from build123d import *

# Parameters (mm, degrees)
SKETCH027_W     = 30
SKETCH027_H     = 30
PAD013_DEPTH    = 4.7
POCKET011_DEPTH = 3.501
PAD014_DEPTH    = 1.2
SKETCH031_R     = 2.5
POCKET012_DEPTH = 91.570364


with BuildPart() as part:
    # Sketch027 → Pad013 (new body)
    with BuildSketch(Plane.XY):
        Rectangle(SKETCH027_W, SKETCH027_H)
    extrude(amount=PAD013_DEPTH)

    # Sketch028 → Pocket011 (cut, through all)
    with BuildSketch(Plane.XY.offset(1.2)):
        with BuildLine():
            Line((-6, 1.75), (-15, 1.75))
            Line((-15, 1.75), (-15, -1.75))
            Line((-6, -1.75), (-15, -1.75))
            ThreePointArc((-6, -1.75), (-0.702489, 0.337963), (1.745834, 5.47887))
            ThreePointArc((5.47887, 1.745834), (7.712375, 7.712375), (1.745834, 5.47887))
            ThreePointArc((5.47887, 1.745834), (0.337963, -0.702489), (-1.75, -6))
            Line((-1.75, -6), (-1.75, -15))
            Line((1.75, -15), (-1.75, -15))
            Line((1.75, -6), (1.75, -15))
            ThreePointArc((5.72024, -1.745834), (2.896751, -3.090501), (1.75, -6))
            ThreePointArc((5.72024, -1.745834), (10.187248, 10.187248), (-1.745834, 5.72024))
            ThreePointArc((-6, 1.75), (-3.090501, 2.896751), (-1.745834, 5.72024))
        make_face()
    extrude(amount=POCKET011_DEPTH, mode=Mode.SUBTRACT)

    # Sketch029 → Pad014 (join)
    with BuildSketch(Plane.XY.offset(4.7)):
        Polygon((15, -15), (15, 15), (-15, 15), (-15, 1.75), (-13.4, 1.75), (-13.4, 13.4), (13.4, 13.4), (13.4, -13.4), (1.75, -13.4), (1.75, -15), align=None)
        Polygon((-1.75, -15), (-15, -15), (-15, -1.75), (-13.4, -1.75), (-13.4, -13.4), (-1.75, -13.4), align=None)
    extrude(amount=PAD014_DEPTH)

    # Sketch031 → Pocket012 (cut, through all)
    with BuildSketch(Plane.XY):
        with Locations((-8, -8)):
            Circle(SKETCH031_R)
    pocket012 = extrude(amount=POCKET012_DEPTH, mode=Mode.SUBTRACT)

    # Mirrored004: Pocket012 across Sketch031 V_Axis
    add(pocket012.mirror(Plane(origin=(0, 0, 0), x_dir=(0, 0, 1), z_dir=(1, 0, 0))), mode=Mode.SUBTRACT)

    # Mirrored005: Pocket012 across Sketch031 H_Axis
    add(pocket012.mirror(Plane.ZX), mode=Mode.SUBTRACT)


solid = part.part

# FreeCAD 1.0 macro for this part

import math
import FreeCAD as App
import Part
import Sketcher

V = App.Vector


def add_polygon(sketch, points):
    """Adds a closed chain of lines whose ends are joined by coincident constraints."""
    first, n = sketch.GeometryCount, len(points)
    for a, b in zip(points, points[1:] + points[:1]):
        sketch.addGeometry(Part.LineSegment(App.Vector(*a, 0), App.Vector(*b, 0)), False)
    for i in range(n):
        sketch.addConstraint(Sketcher.Constraint("Coincident", first + i, 2, first + (i + 1) % n, 1))

doc = App.newDocument("Part")
body = doc.addObject("PartDesign::Body", "Body")

sketch1 = body.newObject("Sketcher::SketchObject", "Sketch")
sketch1.AttachmentSupport = (doc.getObject("XY_Plane"), [""])
sketch1.MapMode = "FlatFace"
add_polygon(sketch1, [(-15, 15), (-15, -15), (15, -15), (15, 15)])
sketch1.addConstraint([
    Sketcher.Constraint("Vertical", 0),
    Sketcher.Constraint("Horizontal", 1),
    Sketcher.Constraint("Vertical", 2),
    Sketcher.Constraint("Horizontal", 3),
    Sketcher.Constraint("Symmetric", 0, 2, 2, 2, -1, 1),
    Sketcher.Constraint("Equal", 3, 0),
    Sketcher.Constraint("DistanceX", 1, 1, 1, 2, 30.0),
])
pad1 = body.newObject("PartDesign::Pad", "Pad")
pad1.Profile = sketch1
pad1.Length = 4.7

sketch2 = body.newObject("Sketcher::SketchObject", "Sketch001")
sketch2.AttachmentSupport = (doc.getObject("XY_Plane"), [""])
sketch2.MapMode = "FlatFace"
sketch2.AttachmentOffset = App.Placement(V(0, 0, 1.2), App.Rotation())
sketch2.addGeometry([
    Part.LineSegment(V(-6, 1.8, 0), V(-15, 1.8, 0)),
    Part.LineSegment(V(-15, 1.8, 0), V(-15, -1.8, 0)),
    Part.LineSegment(V(-15, -1.8, 0), V(-6, -1.8, 0)),
    Part.ArcOfCircle(Part.Circle(V(-6, 6, 0), V(0, 0, 1), 7.8), math.radians(-90), math.radians(-4)),
    Part.ArcOfCircle(Part.Circle(V(5.2, 5.2, 0), V(0, 0, 1), 3.5), math.radians(-86), math.radians(176)),
    Part.ArcOfCircle(Part.Circle(V(6, -6, 0), V(0, 0, 1), 7.8), math.radians(94), math.radians(180)),
    Part.LineSegment(V(-1.8, -6, 0), V(-1.8, -15, 0)),
    Part.LineSegment(V(-1.8, -15, 0), V(1.8, -15, 0)),
    Part.LineSegment(V(1.8, -15, 0), V(1.8, -6, 0)),
    Part.ArcOfCircle(Part.Circle(V(6, -6, 0), V(0, 0, 1), 4.3), math.radians(94), math.radians(180)),
    Part.ArcOfCircle(Part.Circle(V(5.2, 5.2, 0), V(0, 0, 1), 7), math.radians(-86), math.radians(176)),
    Part.ArcOfCircle(Part.Circle(V(-6, 6, 0), V(0, 0, 1), 4.3), math.radians(-90), math.radians(-4)),
], False)
sketch2.addConstraint([
    Sketcher.Constraint("Coincident", 0, 2, 1, 1),
    Sketcher.Constraint("Coincident", 1, 2, 2, 1),
    Sketcher.Constraint("Tangent", 2, 2, 3, 1),
    Sketcher.Constraint("Tangent", 3, 2, 4, 2),
    Sketcher.Constraint("Tangent", 4, 1, 5, 1),
    Sketcher.Constraint("Tangent", 5, 2, 6, 1),
    Sketcher.Constraint("Coincident", 6, 2, 7, 1),
    Sketcher.Constraint("Coincident", 7, 2, 8, 1),
    Sketcher.Constraint("Tangent", 8, 2, 9, 2),
    Sketcher.Constraint("Tangent", 9, 1, 10, 1),
    Sketcher.Constraint("Tangent", 10, 2, 11, 2),
    Sketcher.Constraint("Tangent", 11, 1, 0, 1),
    Sketcher.Constraint("Horizontal", 0),
    Sketcher.Constraint("Vertical", 1),
    Sketcher.Constraint("Horizontal", 2),
    Sketcher.Constraint("Vertical", 6),
    Sketcher.Constraint("Horizontal", 7),
    Sketcher.Constraint("Vertical", 8),
    Sketcher.Constraint("Coincident", 9, 3, 5, 3),
    Sketcher.Constraint("Coincident", 10, 3, 4, 3),
    Sketcher.Constraint("Coincident", 11, 3, 3, 3),
    Sketcher.Constraint("Equal", 3, 5),
    Sketcher.Constraint("Equal", 2, 6),
    Sketcher.Constraint("Radius", 10, 7.0),
    Sketcher.Constraint("Radius", 4, 3.5),
    Sketcher.Constraint("DistanceX", 0, 2, 0, 1, 9.0),
    Sketcher.Constraint("DistanceX", 3, 3, -1, 1, 6.000002),
    Sketcher.Constraint("DistanceY", 5, 3, -1, 1, 6.000002),
    Sketcher.Constraint("DistanceY", -1, 1, 0, 2, 1.75),
    Sketcher.Constraint("DistanceX", 5, 2, -1, 1, 1.75),
    Sketcher.Constraint("Radius", 3, 7.764321),
])
pocket1 = body.newObject("PartDesign::Pocket", "Pocket")
pocket1.Profile = sketch2
pocket1.Type = "ThroughAll"
pocket1.Reversed = True

sketch3 = body.newObject("Sketcher::SketchObject", "Sketch002")
sketch3.AttachmentSupport = (doc.getObject("XY_Plane"), [""])
sketch3.MapMode = "FlatFace"
sketch3.AttachmentOffset = App.Placement(V(0, 0, 4.7), App.Rotation())
add_polygon(sketch3, [(15, -15), (15, 15), (-15, 15), (-15, 1.8), (-13.4, 1.8), (-13.4, 13.4), (13.4, 13.4), (13.4, -13.4), (1.8, -13.4), (1.8, -15)])
add_polygon(sketch3, [(-15, -15), (-1.8, -15), (-1.8, -13.4), (-13.4, -13.4), (-13.4, -1.8), (-15, -1.8)])
sketch3.addConstraint([
    Sketcher.Constraint("Vertical", 0),
    Sketcher.Constraint("Horizontal", 1),
    Sketcher.Constraint("Vertical", 2),
    Sketcher.Constraint("Horizontal", 3),
    Sketcher.Constraint("Vertical", 4),
    Sketcher.Constraint("Horizontal", 5),
    Sketcher.Constraint("Vertical", 6),
    Sketcher.Constraint("Horizontal", 7),
    Sketcher.Constraint("Vertical", 8),
    Sketcher.Constraint("Horizontal", 9),
    Sketcher.Constraint("Horizontal", 10),
    Sketcher.Constraint("Vertical", 11),
    Sketcher.Constraint("Horizontal", 12),
    Sketcher.Constraint("Vertical", 13),
    Sketcher.Constraint("Horizontal", 14),
    Sketcher.Constraint("Vertical", 15),
    Sketcher.Constraint("Symmetric", 4, 2, 6, 2, -1, 1),
    Sketcher.Constraint("Symmetric", 1, 2, 9, 2, -1, 1),
    Sketcher.Constraint("Symmetric", 5, 2, 12, 2, -1, 1),
    Sketcher.Constraint("Symmetric", 0, 2, 15, 2, -1, 1),
    Sketcher.Constraint("Equal", 9, 10),
    Sketcher.Constraint("Equal", 1, 0),
    Sketcher.Constraint("Equal", 10, 2),
    Sketcher.Constraint("Equal", 12, 4),
    Sketcher.Constraint("Equal", 4, 13),
    Sketcher.Constraint("DistanceX", 1, 2, 1, 1, 30.0),
    Sketcher.Constraint("DistanceX", 3, 1, 3, 2, 1.6),
    Sketcher.Constraint("DistanceX", 7, 2, 7, 1, 11.65),
])
pad2 = body.newObject("PartDesign::Pad", "Pad001")
pad2.Profile = sketch3
pad2.Length = 1.2

sketch4 = body.newObject("Sketcher::SketchObject", "Sketch003")
sketch4.AttachmentSupport = (doc.getObject("XY_Plane"), [""])
sketch4.MapMode = "FlatFace"
sketch4.addGeometry(Part.Circle(V(-8, -8, 0), V(0, 0, 1), 2.5), False)
sketch4.addConstraint([
    Sketcher.Constraint("Diameter", 0, 5.0),
    Sketcher.Constraint("DistanceX", 0, 3, -1, 1, 8.0),
    Sketcher.Constraint("DistanceY", 0, 3, -1, 1, 8.0),
])
pocket2 = body.newObject("PartDesign::Pocket", "Pocket001")
pocket2.Profile = sketch4
pocket2.Type = "ThroughAll"
pocket2.Reversed = True
doc.recompute()

mirrored = body.newObject("PartDesign::Mirrored", "Mirrored")
mirrored.Originals = [pocket2]
mirrored.MirrorPlane = (doc.getObject("YZ_Plane"), [""])
body.Tip = mirrored
doc.recompute()

mirrored2 = body.newObject("PartDesign::Mirrored", "Mirrored001")
mirrored2.Originals = [pocket2]
mirrored2.MirrorPlane = (doc.getObject("XZ_Plane"), [""])
body.Tip = mirrored2

doc.recompute()
